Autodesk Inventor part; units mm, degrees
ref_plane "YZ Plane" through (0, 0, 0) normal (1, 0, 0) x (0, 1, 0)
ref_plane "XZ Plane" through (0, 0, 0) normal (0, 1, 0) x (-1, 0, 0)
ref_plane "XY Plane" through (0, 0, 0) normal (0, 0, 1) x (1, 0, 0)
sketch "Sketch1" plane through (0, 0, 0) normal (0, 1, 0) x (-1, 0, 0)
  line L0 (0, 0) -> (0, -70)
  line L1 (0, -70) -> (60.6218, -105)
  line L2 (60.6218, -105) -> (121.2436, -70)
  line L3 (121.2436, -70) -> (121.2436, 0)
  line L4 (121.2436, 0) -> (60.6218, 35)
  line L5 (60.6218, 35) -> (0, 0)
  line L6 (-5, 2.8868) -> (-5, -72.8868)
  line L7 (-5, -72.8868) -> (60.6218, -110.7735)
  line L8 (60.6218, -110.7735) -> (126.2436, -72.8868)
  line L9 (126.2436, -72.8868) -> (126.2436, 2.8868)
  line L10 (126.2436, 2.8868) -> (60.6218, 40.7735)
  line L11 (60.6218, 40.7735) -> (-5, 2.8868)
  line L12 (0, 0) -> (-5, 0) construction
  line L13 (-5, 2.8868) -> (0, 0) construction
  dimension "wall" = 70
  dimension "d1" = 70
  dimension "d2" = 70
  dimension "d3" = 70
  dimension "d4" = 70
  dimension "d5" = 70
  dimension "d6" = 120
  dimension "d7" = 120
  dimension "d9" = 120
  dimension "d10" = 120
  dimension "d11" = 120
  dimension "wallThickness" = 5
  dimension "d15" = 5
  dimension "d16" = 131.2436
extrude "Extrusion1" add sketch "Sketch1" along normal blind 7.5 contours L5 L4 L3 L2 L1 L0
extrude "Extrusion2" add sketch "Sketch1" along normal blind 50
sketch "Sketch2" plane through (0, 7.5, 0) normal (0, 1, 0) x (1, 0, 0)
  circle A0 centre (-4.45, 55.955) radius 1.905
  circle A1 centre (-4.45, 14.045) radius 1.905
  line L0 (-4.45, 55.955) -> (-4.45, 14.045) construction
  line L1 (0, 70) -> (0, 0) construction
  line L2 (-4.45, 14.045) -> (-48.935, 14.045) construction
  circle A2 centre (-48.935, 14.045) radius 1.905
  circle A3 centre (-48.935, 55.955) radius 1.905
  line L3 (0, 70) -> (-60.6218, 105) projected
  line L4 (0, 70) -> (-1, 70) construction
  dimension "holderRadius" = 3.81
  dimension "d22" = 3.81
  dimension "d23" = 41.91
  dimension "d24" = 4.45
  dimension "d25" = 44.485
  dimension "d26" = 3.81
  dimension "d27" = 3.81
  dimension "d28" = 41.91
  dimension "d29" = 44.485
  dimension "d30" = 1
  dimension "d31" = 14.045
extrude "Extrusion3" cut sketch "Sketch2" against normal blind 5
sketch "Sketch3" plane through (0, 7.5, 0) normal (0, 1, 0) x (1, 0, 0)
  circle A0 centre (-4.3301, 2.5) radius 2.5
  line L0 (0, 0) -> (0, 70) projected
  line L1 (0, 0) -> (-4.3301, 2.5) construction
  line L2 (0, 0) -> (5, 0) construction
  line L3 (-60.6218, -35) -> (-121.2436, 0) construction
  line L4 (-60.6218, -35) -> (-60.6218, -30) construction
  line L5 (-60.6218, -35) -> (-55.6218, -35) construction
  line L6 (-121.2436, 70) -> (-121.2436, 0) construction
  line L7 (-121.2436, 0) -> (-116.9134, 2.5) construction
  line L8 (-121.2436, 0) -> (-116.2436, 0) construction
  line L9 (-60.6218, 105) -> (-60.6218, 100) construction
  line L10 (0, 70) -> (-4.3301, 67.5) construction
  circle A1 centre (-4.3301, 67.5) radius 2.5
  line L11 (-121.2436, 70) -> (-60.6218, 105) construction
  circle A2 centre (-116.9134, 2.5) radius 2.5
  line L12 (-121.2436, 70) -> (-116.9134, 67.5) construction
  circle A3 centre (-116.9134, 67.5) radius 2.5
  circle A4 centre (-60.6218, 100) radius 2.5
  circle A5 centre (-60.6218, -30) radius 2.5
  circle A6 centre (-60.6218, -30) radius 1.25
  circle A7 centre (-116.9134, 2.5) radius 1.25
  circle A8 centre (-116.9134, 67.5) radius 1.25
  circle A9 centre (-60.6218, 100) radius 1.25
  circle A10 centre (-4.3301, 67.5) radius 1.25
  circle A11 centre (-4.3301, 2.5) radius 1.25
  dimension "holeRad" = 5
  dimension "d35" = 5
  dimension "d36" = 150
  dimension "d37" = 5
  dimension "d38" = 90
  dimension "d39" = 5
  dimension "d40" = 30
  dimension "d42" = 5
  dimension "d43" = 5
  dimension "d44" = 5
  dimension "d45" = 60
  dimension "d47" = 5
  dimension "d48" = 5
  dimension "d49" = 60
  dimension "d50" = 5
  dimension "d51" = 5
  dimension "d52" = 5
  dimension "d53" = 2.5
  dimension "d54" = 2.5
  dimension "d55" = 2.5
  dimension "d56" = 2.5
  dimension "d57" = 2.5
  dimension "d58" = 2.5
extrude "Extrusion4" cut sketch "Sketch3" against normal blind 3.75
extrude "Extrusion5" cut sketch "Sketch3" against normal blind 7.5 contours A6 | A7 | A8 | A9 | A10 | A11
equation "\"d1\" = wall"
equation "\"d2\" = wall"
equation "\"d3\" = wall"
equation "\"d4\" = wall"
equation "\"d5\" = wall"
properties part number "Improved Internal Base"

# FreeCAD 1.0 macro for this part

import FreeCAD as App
import Part
import Sketcher
Q = App.Units.Quantity


def add_polygon(sketch, points):
    """Adds a closed chain of lines whose ends are joined by coincident constraints."""
    first, n = sketch.GeometryCount, len(points)
    for a, b in zip(points, points[1:] + points[:1]):
        sketch.addGeometry(Part.LineSegment(App.Vector(*a, 0), App.Vector(*b, 0)), False)
    for i in range(n):
        sketch.addConstraint(Sketcher.Constraint("Coincident", first + i, 2, first + (i + 1) % n, 1))

doc = App.newDocument("Part")
body = doc.addObject("PartDesign::Body", "Body")

sketch1 = doc.addObject("Sketcher::SketchObject", "Sketch")
body.addObject(sketch1)
sketch1.AttachmentSupport = (doc.XZ_Plane, [""])
sketch1.MapMode = "FlatFace"
add_polygon(sketch1, [(-61, 35), (0, 0), (0, -70), (-61, -105), (-121, -70), (-121, 0)])
sketch1.addConstraint(Sketcher.Constraint("Vertical", 1))
sketch1.addConstraint(Sketcher.Constraint("Vertical", 4))
sketch1.addConstraint(Sketcher.Constraint("Coincident", 0, 2, -1, 1))
sketch1.addConstraint(Sketcher.Constraint("PointOnObject", 4, 2, -1))
sketch1.addConstraint(Sketcher.Constraint("Parallel", 0, 3))
sketch1.addConstraint(Sketcher.Constraint("Parallel", 2, 5))
sketch1.addConstraint(Sketcher.Constraint("Horizontal", 1, 2, 3, 2))
sketch1.addConstraint(Sketcher.Constraint("Vertical", 2, 2, 5, 2))
sketch1.addConstraint(Sketcher.Constraint("DistanceY", 1, 2, 1, 1, 70.0))
sketch1.addConstraint(Sketcher.Constraint("Distance", 0, 70.0))
sketch1.addConstraint(Sketcher.Constraint("Angle", 0, Q("-30 deg")))
pad1 = doc.addObject("PartDesign::Pad", "Pad")
body.addObject(pad1)
pad1.Profile = sketch1
pad1.Length = 7.5
pad1.Reversed = True

sketch2 = doc.addObject("Sketcher::SketchObject", "Sketch001")
body.addObject(sketch2)
sketch2.AttachmentSupport = (doc.XZ_Plane, [""])
sketch2.MapMode = "FlatFace"
add_polygon(sketch2, [(-61, 41), (5, 3), (5, -73), (-61, -111), (-126, -73), (-126, 3)])
add_polygon(sketch2, [(0, -70), (0, 0), (-61, 35), (-121, 0), (-121, -70), (-61, -105)])
sketch2.addConstraint(Sketcher.Constraint("Vertical", 1))
sketch2.addConstraint(Sketcher.Constraint("Vertical", 4))
sketch2.addConstraint(Sketcher.Constraint("Vertical", 6))
sketch2.addConstraint(Sketcher.Constraint("Vertical", 9))
sketch2.addConstraint(Sketcher.Constraint("Coincident", 6, 2, -1, 1))
sketch2.addConstraint(Sketcher.Constraint("PointOnObject", 8, 2, -1))
sketch2.addConstraint(Sketcher.Constraint("Parallel", 0, 3))
sketch2.addConstraint(Sketcher.Constraint("Parallel", 2, 5))
sketch2.addConstraint(Sketcher.Constraint("Parallel", 3, 7))
sketch2.addConstraint(Sketcher.Constraint("Parallel", 5, 8))
sketch2.addConstraint(Sketcher.Constraint("Parallel", 7, 10))
sketch2.addConstraint(Sketcher.Constraint("Parallel", 8, 11))
sketch2.addConstraint(Sketcher.Constraint("Horizontal", 1, 2, 3, 2))
sketch2.addConstraint(Sketcher.Constraint("Horizontal", 0, 2, 4, 2))
sketch2.addConstraint(Sketcher.Constraint("Horizontal", 9, 2, 11, 2))
sketch2.addConstraint(Sketcher.Constraint("Vertical", 2, 2, 5, 2))
sketch2.addConstraint(Sketcher.Constraint("Vertical", 5, 2, 7, 2))
sketch2.addConstraint(Sketcher.Constraint("DistanceY", 6, 1, 6, 2, 70.0))
sketch2.addConstraint(Sketcher.Constraint("Distance", 7, 70.0))
sketch2.addConstraint(Sketcher.Constraint("DistanceX", -1, 1, 0, 2, 5.0))
sketch2.addConstraint(Sketcher.Constraint("Angle", 0, Q("-30 deg")))
sketch2.addConstraint(Sketcher.Constraint("DistanceY", 1, 2, 1, 1, 75.7736))
sketch2.addConstraint(Sketcher.Constraint("DistanceY", -1, 1, 0, 2, 2.8868))
pad2 = doc.addObject("PartDesign::Pad", "Pad001")
body.addObject(pad2)
pad2.Profile = sketch2
pad2.Length = 50
pad2.Reversed = True

sketch3 = doc.addObject("Sketcher::SketchObject", "Sketch002")
body.addObject(sketch3)
sketch3.AttachmentSupport = (doc.XZ_Plane, [""])
sketch3.MapMode = "FlatFace"
sketch3.AttachmentOffset = App.Placement(App.Vector(0, 0, -7.5), App.Rotation())
sketch3.addGeometry(Part.Circle(App.Vector(-4.5, -56, 0), App.Vector(0, 0, 1), 1.9), False)
sketch3.addGeometry(Part.Circle(App.Vector(-4.5, -14, 0), App.Vector(0, 0, 1), 1.9), False)
sketch3.addGeometry(Part.Circle(App.Vector(-48.9, -14, 0), App.Vector(0, 0, 1), 1.9), False)
sketch3.addGeometry(Part.Circle(App.Vector(-48.9, -56, 0), App.Vector(0, 0, 1), 1.9), False)
sketch3.addConstraint(Sketcher.Constraint("Equal", 0, 1))
sketch3.addConstraint(Sketcher.Constraint("Equal", 1, 2))
sketch3.addConstraint(Sketcher.Constraint("Equal", 2, 3))
sketch3.addConstraint(Sketcher.Constraint("Horizontal", 1, 3, 2, 3))
sketch3.addConstraint(Sketcher.Constraint("Horizontal", 0, 3, 3, 3))
sketch3.addConstraint(Sketcher.Constraint("Vertical", 0, 3, 1, 3))
sketch3.addConstraint(Sketcher.Constraint("Vertical", 2, 3, 3, 3))
sketch3.addConstraint(Sketcher.Constraint("Diameter", 0, 3.81))
sketch3.addConstraint(Sketcher.Constraint("DistanceX", 0, 3, -1, 1, 4.45))
sketch3.addConstraint(Sketcher.Constraint("DistanceY", 0, 3, 1, 3, 41.91))
sketch3.addConstraint(Sketcher.Constraint("DistanceY", 1, 3, -1, 1, 14.045))
sketch3.addConstraint(Sketcher.Constraint("DistanceX", 2, 3, 1, 3, 44.485))
pocket1 = doc.addObject("PartDesign::Pocket", "Pocket")
body.addObject(pocket1)
pocket1.Profile = sketch3
pocket1.Length = 5
pocket1.Reversed = True

sketch4 = doc.addObject("Sketcher::SketchObject", "Sketch003")
body.addObject(sketch4)
sketch4.AttachmentSupport = (doc.XZ_Plane, [""])
sketch4.MapMode = "FlatFace"
sketch4.AttachmentOffset = App.Placement(App.Vector(0, 0, -7.5), App.Rotation())
sketch4.addGeometry(Part.Circle(App.Vector(-4.3, -2.5, 0), App.Vector(0, 0, 1), 2.5), False)
sketch4.addGeometry(Part.Circle(App.Vector(-4.3, -2.5, 0), App.Vector(0, 0, 1), 1.2), False)
sketch4.addGeometry(Part.Circle(App.Vector(-4.3, -67.5, 0), App.Vector(0, 0, 1), 2.5), False)
sketch4.addGeometry(Part.Circle(App.Vector(-4.3, -67.5, 0), App.Vector(0, 0, 1), 1.2), False)
sketch4.addGeometry(Part.Circle(App.Vector(-116.9, -2.5, 0), App.Vector(0, 0, 1), 2.5), False)
sketch4.addGeometry(Part.Circle(App.Vector(-116.9, -2.5, 0), App.Vector(0, 0, 1), 1.2), False)
sketch4.addGeometry(Part.Circle(App.Vector(-116.9, -67.5, 0), App.Vector(0, 0, 1), 2.5), False)
sketch4.addGeometry(Part.Circle(App.Vector(-116.9, -67.5, 0), App.Vector(0, 0, 1), 1.2), False)
sketch4.addGeometry(Part.Circle(App.Vector(-60.6, -100, 0), App.Vector(0, 0, 1), 2.5), False)
sketch4.addGeometry(Part.Circle(App.Vector(-60.6, -100, 0), App.Vector(0, 0, 1), 1.2), False)
sketch4.addGeometry(Part.Circle(App.Vector(-60.6, 30, 0), App.Vector(0, 0, 1), 2.5), False)
sketch4.addGeometry(Part.Circle(App.Vector(-60.6, 30, 0), App.Vector(0, 0, 1), 1.2), False)
sketch4.addConstraint(Sketcher.Constraint("Coincident", 1, 3, 0, 3))
sketch4.addConstraint(Sketcher.Constraint("Coincident", 3, 3, 2, 3))
sketch4.addConstraint(Sketcher.Constraint("Coincident", 5, 3, 4, 3))
sketch4.addConstraint(Sketcher.Constraint("Coincident", 7, 3, 6, 3))
sketch4.addConstraint(Sketcher.Constraint("Coincident", 9, 3, 8, 3))
sketch4.addConstraint(Sketcher.Constraint("Coincident", 11, 3, 10, 3))
sketch4.addConstraint(Sketcher.Constraint("Equal", 0, 2))
sketch4.addConstraint(Sketcher.Constraint("Equal", 1, 3))
sketch4.addConstraint(Sketcher.Constraint("Equal", 2, 4))
sketch4.addConstraint(Sketcher.Constraint("Equal", 3, 5))
sketch4.addConstraint(Sketcher.Constraint("Equal", 4, 6))
sketch4.addConstraint(Sketcher.Constraint("Equal", 5, 7))
sketch4.addConstraint(Sketcher.Constraint("Equal", 6, 8))
sketch4.addConstraint(Sketcher.Constraint("Equal", 7, 9))
sketch4.addConstraint(Sketcher.Constraint("Equal", 8, 10))
sketch4.addConstraint(Sketcher.Constraint("Equal", 9, 11))
sketch4.addConstraint(Sketcher.Constraint("Horizontal", 1, 3, 4, 3))
sketch4.addConstraint(Sketcher.Constraint("Horizontal", 3, 3, 6, 3))
sketch4.addConstraint(Sketcher.Constraint("Vertical", 1, 3, 2, 3))
sketch4.addConstraint(Sketcher.Constraint("Vertical", 5, 3, 6, 3))
sketch4.addConstraint(Sketcher.Constraint("Vertical", 9, 3, 10, 3))
sketch4.addConstraint(Sketcher.Constraint("Diameter", 0, 5.0))
sketch4.addConstraint(Sketcher.Constraint("Diameter", 1, 2.5))
sketch4.addConstraint(Sketcher.Constraint("DistanceY", -1, 1, 10, 3, 30.0))
sketch4.addConstraint(Sketcher.Constraint("DistanceY", 0, 3, -1, 1, 2.5))
sketch4.addConstraint(Sketcher.Constraint("DistanceY", 8, 3, -1, 1, 100.0))
sketch4.addConstraint(Sketcher.Constraint("DistanceY", 2, 3, 0, 3, 65.0))
sketch4.addConstraint(Sketcher.Constraint("DistanceX", 0, 3, -1, 1, 4.33))
sketch4.addConstraint(Sketcher.Constraint("DistanceX", 4, 3, -1, 1, 116.9134))
sketch4.addConstraint(Sketcher.Constraint("DistanceX", 8, 3, -1, 1, 60.6218))
pocket2 = doc.addObject("PartDesign::Pocket", "Pocket001")
body.addObject(pocket2)
pocket2.Profile = sketch4
pocket2.Length = 3.75
pocket2.Reversed = True

sketch5 = doc.addObject("Sketcher::SketchObject", "Sketch004")
body.addObject(sketch5)
sketch5.AttachmentSupport = (doc.XZ_Plane, [""])
sketch5.MapMode = "FlatFace"
sketch5.AttachmentOffset = App.Placement(App.Vector(0, 0, -7.5), App.Rotation())
sketch5.addGeometry(Part.Circle(App.Vector(-60.6, 30, 0), App.Vector(0, 0, 1), 1.2), False)
sketch5.addGeometry(Part.Circle(App.Vector(-116.9, -2.5, 0), App.Vector(0, 0, 1), 1.2), False)
sketch5.addGeometry(Part.Circle(App.Vector(-116.9, -67.5, 0), App.Vector(0, 0, 1), 1.2), False)
sketch5.addGeometry(Part.Circle(App.Vector(-60.6, -100, 0), App.Vector(0, 0, 1), 1.2), False)
sketch5.addGeometry(Part.Circle(App.Vector(-4.3, -67.5, 0), App.Vector(0, 0, 1), 1.2), False)
sketch5.addGeometry(Part.Circle(App.Vector(-4.3, -2.5, 0), App.Vector(0, 0, 1), 1.2), False)
sketch5.addConstraint(Sketcher.Constraint("Equal", 0, 1))
sketch5.addConstraint(Sketcher.Constraint("Equal", 1, 2))
sketch5.addConstraint(Sketcher.Constraint("Equal", 2, 3))
sketch5.addConstraint(Sketcher.Constraint("Equal", 3, 4))
sketch5.addConstraint(Sketcher.Constraint("Equal", 4, 5))
sketch5.addConstraint(Sketcher.Constraint("Horizontal", 2, 3, 4, 3))
sketch5.addConstraint(Sketcher.Constraint("Horizontal", 1, 3, 5, 3))
sketch5.addConstraint(Sketcher.Constraint("Vertical", 1, 3, 2, 3))
sketch5.addConstraint(Sketcher.Constraint("Vertical", 0, 3, 3, 3))
sketch5.addConstraint(Sketcher.Constraint("Vertical", 4, 3, 5, 3))
sketch5.addConstraint(Sketcher.Constraint("Diameter", 0, 2.5))
sketch5.addConstraint(Sketcher.Constraint("DistanceY", -1, 1, 0, 3, 30.0))
sketch5.addConstraint(Sketcher.Constraint("DistanceY", 1, 3, -1, 1, 2.5))
sketch5.addConstraint(Sketcher.Constraint("DistanceY", 3, 3, -1, 1, 100.0))
sketch5.addConstraint(Sketcher.Constraint("DistanceY", 2, 3, 1, 3, 65.0))
sketch5.addConstraint(Sketcher.Constraint("DistanceX", 4, 3, -1, 1, 4.33))
sketch5.addConstraint(Sketcher.Constraint("DistanceX", 0, 3, -1, 1, 60.6218))
sketch5.addConstraint(Sketcher.Constraint("DistanceX", 1, 3, -1, 1, 116.9134))
pocket3 = doc.addObject("PartDesign::Pocket", "Pocket002")
body.addObject(pocket3)
pocket3.Profile = sketch5
pocket3.Length = 7.5
pocket3.Reversed = True

doc.recompute()
